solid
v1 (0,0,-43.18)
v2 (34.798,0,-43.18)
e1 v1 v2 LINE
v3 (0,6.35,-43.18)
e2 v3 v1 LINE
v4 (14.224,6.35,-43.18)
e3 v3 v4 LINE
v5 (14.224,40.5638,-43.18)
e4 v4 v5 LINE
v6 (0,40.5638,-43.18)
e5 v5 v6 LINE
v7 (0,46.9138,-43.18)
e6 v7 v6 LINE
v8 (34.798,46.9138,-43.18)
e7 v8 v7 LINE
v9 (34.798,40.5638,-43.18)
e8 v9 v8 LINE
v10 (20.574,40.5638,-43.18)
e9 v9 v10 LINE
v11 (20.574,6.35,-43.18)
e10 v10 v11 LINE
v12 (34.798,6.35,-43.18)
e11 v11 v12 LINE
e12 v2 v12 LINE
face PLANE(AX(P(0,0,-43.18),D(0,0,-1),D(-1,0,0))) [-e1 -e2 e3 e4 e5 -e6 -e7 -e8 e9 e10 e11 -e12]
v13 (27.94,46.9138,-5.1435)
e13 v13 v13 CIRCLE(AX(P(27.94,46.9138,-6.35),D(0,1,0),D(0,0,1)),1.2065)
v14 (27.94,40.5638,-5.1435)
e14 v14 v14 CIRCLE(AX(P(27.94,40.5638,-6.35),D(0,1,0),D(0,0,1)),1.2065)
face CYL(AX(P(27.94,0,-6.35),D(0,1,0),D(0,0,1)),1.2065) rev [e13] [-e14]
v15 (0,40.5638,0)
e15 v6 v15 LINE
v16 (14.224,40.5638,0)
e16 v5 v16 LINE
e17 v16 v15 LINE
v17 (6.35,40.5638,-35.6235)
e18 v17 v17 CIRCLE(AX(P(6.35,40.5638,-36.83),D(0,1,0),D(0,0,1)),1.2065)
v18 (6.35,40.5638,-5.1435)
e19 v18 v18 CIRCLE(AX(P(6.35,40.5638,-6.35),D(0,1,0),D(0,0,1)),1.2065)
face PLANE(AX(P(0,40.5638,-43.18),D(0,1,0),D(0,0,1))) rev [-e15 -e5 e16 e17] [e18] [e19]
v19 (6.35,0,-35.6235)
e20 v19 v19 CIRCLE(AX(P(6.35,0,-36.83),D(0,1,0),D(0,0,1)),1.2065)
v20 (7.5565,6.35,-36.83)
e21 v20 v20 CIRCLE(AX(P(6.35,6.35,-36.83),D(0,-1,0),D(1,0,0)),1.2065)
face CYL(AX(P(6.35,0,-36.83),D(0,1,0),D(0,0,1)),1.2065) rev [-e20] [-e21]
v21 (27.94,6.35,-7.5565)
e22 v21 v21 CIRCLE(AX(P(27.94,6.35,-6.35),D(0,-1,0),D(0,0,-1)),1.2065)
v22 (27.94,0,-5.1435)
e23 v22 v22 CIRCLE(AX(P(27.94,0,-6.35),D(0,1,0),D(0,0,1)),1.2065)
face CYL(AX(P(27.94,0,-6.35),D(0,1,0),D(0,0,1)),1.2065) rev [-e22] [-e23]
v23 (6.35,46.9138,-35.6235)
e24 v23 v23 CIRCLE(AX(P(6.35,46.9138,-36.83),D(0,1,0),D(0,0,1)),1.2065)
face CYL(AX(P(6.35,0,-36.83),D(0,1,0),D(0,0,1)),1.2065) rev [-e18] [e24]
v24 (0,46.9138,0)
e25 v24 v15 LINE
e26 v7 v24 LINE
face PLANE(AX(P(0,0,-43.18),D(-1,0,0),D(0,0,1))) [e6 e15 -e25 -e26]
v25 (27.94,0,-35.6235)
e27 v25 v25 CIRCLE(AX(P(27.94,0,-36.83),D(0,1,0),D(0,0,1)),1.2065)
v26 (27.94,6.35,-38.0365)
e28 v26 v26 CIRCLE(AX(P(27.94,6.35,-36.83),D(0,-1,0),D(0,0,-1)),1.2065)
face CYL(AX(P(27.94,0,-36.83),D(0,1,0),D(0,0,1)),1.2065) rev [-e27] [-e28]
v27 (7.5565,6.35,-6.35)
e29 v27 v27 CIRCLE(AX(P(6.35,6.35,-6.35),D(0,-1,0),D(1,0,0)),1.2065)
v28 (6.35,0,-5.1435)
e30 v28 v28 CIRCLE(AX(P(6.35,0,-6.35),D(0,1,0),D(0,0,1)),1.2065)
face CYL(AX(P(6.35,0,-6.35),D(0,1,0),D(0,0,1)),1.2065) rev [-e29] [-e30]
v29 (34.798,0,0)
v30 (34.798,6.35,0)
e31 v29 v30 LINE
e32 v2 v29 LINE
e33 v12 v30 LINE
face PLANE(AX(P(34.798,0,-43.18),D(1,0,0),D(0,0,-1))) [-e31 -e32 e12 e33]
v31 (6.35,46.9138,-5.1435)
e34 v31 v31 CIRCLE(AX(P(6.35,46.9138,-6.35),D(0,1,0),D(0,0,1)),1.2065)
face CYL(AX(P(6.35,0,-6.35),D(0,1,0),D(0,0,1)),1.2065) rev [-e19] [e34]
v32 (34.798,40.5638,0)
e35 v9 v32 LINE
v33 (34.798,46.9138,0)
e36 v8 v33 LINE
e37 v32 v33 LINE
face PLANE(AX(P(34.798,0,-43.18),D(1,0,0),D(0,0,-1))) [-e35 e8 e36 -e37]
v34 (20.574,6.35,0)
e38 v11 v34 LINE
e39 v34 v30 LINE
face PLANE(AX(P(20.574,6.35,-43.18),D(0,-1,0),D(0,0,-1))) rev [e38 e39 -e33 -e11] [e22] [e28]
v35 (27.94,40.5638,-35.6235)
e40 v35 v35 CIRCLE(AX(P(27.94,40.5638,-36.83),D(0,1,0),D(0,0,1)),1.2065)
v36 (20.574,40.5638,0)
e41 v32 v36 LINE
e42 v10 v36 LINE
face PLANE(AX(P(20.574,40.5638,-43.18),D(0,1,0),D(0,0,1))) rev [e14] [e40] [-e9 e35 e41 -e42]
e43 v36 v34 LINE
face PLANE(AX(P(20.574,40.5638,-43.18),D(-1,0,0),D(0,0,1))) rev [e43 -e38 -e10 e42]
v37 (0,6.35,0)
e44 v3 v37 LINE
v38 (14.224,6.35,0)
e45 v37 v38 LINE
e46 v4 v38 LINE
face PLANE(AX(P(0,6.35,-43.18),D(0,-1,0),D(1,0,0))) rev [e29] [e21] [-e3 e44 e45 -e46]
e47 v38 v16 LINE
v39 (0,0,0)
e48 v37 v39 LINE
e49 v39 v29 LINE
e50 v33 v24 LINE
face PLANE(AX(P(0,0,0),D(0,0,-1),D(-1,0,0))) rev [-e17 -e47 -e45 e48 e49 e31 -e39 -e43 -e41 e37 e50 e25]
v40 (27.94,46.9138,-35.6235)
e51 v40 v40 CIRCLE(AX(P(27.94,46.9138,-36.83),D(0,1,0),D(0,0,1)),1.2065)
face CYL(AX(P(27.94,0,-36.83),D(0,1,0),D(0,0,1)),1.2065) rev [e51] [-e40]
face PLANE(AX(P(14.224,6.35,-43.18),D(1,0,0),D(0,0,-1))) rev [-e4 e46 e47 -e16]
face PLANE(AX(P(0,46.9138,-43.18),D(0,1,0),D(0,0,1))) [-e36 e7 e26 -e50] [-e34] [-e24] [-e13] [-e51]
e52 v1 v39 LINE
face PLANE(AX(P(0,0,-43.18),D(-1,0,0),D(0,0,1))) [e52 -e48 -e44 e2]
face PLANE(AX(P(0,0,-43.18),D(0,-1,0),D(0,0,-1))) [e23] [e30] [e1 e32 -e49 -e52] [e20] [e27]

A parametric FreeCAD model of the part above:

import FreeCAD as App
import Part
import Sketcher
from FreeCAD import Vector
Q = App.Units.Quantity

doc = App.newDocument("Part")
params = doc.addObject("Spreadsheet::Sheet", "Params")
for row, (alias, value) in enumerate([
    ("sketch1_width", "1.37 in"),
    ("sketch1_height", "1.847 in"),
    ("pad1_length", "1.7 in"),
    ("sketch2_width", "0.56 in"),
    ("sketch2_height", "1.347 in"),
    ("pocket1_length", "1.7 in"),
    ("sketch3_diameter", "0.095 in"),
], start=1):
    params.set(f"A{row}", alias)
    params.set(f"B{row}", "=" + value)
    params.setAlias(f"B{row}", alias)

body = doc.addObject("PartDesign::Body", "Body")

sketch1 = body.newObject("Sketcher::SketchObject", "Sketch")
sketch1.AttachmentSupport = (doc.getObject("XY_Plane"), [""])
sketch1.MapMode = "FlatFace"
sketch1.addGeometry(Part.LineSegment(Vector(0, 47, 0), Vector(0, 0, 0)), False)
sketch1.addGeometry(Part.LineSegment(Vector(0, 0, 0), Vector(35, 0, 0)), False)
sketch1.addGeometry(Part.LineSegment(Vector(35, 0, 0), Vector(35, 47, 0)), False)
sketch1.addGeometry(Part.LineSegment(Vector(35, 47, 0), Vector(0, 47, 0)), False)
sketch1.addConstraint(Sketcher.Constraint("Coincident", 0, 2, 1, 1))
sketch1.addConstraint(Sketcher.Constraint("Coincident", 1, 2, 2, 1))
sketch1.addConstraint(Sketcher.Constraint("Coincident", 2, 2, 3, 1))
sketch1.addConstraint(Sketcher.Constraint("Coincident", 3, 2, 0, 1))
sketch1.addConstraint(Sketcher.Constraint("Vertical", 0))
sketch1.addConstraint(Sketcher.Constraint("Horizontal", 1))
sketch1.addConstraint(Sketcher.Constraint("Vertical", 2))
sketch1.addConstraint(Sketcher.Constraint("Horizontal", 3))
sketch1.addConstraint(Sketcher.Constraint("Coincident", 0, 2, -1, 1))
sketch1.addConstraint(Sketcher.Constraint("DistanceX", 1, 1, 1, 2, Q("1.37 in")))
sketch1.addConstraint(Sketcher.Constraint("DistanceY", 0, 2, 0, 1, Q("1.847 in")))
sketch1.setExpression("Constraints[9]", "Params.sketch1_width")
sketch1.setExpression("Constraints[10]", "Params.sketch1_height")
pad1 = body.newObject("PartDesign::Pad", "Pad")
pad1.Profile = sketch1
pad1.setExpression("Length", "Params.pad1_length")
pad1.Reversed = True

sketch2 = body.newObject("Sketcher::SketchObject", "Sketch001")
sketch2.AttachmentSupport = (doc.getObject("XY_Plane"), [""])
sketch2.MapMode = "FlatFace"
sketch2.addGeometry(Part.LineSegment(Vector(0, 41, 0), Vector(0, 6, 0)), False)
sketch2.addGeometry(Part.LineSegment(Vector(0, 6, 0), Vector(14, 6, 0)), False)
sketch2.addGeometry(Part.LineSegment(Vector(14, 6, 0), Vector(14, 41, 0)), False)
sketch2.addGeometry(Part.LineSegment(Vector(14, 41, 0), Vector(0, 41, 0)), False)
sketch2.addGeometry(Part.LineSegment(Vector(21, 41, 0), Vector(21, 6, 0)), False)
sketch2.addGeometry(Part.LineSegment(Vector(21, 6, 0), Vector(35, 6, 0)), False)
sketch2.addGeometry(Part.LineSegment(Vector(35, 6, 0), Vector(35, 41, 0)), False)
sketch2.addGeometry(Part.LineSegment(Vector(35, 41, 0), Vector(21, 41, 0)), False)
sketch2.addConstraint(Sketcher.Constraint("Coincident", 0, 2, 1, 1))
sketch2.addConstraint(Sketcher.Constraint("Coincident", 1, 2, 2, 1))
sketch2.addConstraint(Sketcher.Constraint("Coincident", 2, 2, 3, 1))
sketch2.addConstraint(Sketcher.Constraint("Coincident", 3, 2, 0, 1))
sketch2.addConstraint(Sketcher.Constraint("Coincident", 4, 2, 5, 1))
sketch2.addConstraint(Sketcher.Constraint("Coincident", 5, 2, 6, 1))
sketch2.addConstraint(Sketcher.Constraint("Coincident", 6, 2, 7, 1))
sketch2.addConstraint(Sketcher.Constraint("Coincident", 7, 2, 4, 1))
sketch2.addConstraint(Sketcher.Constraint("Vertical", 0))
sketch2.addConstraint(Sketcher.Constraint("Horizontal", 1))
sketch2.addConstraint(Sketcher.Constraint("Vertical", 2))
sketch2.addConstraint(Sketcher.Constraint("Horizontal", 3))
sketch2.addConstraint(Sketcher.Constraint("Vertical", 4))
sketch2.addConstraint(Sketcher.Constraint("Horizontal", 5))
sketch2.addConstraint(Sketcher.Constraint("Vertical", 6))
sketch2.addConstraint(Sketcher.Constraint("Horizontal", 7))
sketch2.addConstraint(Sketcher.Constraint("PointOnObject", 0, 2, -2))
sketch2.addConstraint(Sketcher.Constraint("Horizontal", 1, 2, 4, 2))
sketch2.addConstraint(Sketcher.Constraint("Horizontal", 3, 2, 6, 2))
sketch2.addConstraint(Sketcher.Constraint("Equal", 3, 5))
sketch2.addConstraint(Sketcher.Constraint("DistanceX", 1, 1, 1, 2, Q("0.56 in")))
sketch2.addConstraint(Sketcher.Constraint("DistanceY", 0, 2, 0, 1, Q("1.347 in")))
sketch2.addConstraint(Sketcher.Constraint("DistanceY", -1, 1, 0, 2, Q("0.25 in")))
sketch2.addConstraint(Sketcher.Constraint("DistanceX", -1, 1, 4, 2, Q("0.81 in")))
sketch2.setExpression("Constraints[20]", "Params.sketch2_width")
sketch2.setExpression("Constraints[21]", "Params.sketch2_height")
pocket1 = body.newObject("PartDesign::Pocket", "Pocket")
pocket1.Profile = sketch2
pocket1.setExpression("Length", "Params.pocket1_length")

sketch3 = body.newObject("Sketcher::SketchObject", "Sketch002")
sketch3.AttachmentSupport = (doc.getObject("XZ_Plane"), [""])
sketch3.MapMode = "FlatFace"
sketch3.AttachmentOffset = App.Placement(Vector(0, 0, -1.847 * 25.4), App.Rotation())
sketch3.addGeometry(Part.Circle(Vector(6.3, -6.3, 0), Vector(0, 0, 1), 1.2), False)
sketch3.addGeometry(Part.Circle(Vector(27.9, -6.3, 0), Vector(0, 0, 1), 1.2), False)
sketch3.addGeometry(Part.Circle(Vector(6.3, -36.8, 0), Vector(0, 0, 1), 1.2), False)
sketch3.addGeometry(Part.Circle(Vector(27.9, -36.8, 0), Vector(0, 0, 1), 1.2), False)
sketch3.addConstraint(Sketcher.Constraint("Equal", 0, 1))
sketch3.addConstraint(Sketcher.Constraint("Equal", 1, 2))
sketch3.addConstraint(Sketcher.Constraint("Equal", 2, 3))
sketch3.addConstraint(Sketcher.Constraint("Horizontal", 0, 3, 1, 3))
sketch3.addConstraint(Sketcher.Constraint("Horizontal", 2, 3, 3, 3))
sketch3.addConstraint(Sketcher.Constraint("Vertical", 0, 3, 2, 3))
sketch3.addConstraint(Sketcher.Constraint("Vertical", 1, 3, 3, 3))
sketch3.addConstraint(Sketcher.Constraint("Diameter", 0, Q("0.095 in")))
sketch3.addConstraint(Sketcher.Constraint("DistanceX", -1, 1, 1, 3, Q("1.1 in")))
sketch3.addConstraint(Sketcher.Constraint("DistanceY", 2, 3, 0, 3, Q("1.2 in")))
sketch3.addConstraint(Sketcher.Constraint("DistanceX", -1, 1, 0, 3, Q("0.25 in")))
sketch3.addConstraint(Sketcher.Constraint("DistanceY", 0, 3, -1, 1, Q("0.25 in")))
sketch3.setExpression("Constraints[7]", "Params.sketch3_diameter")
pocket2 = body.newObject("PartDesign::Pocket", "Pocket001")
pocket2.Profile = sketch3
pocket2.Type = "ThroughAll"
pocket2.Reversed = True

doc.recompute()
